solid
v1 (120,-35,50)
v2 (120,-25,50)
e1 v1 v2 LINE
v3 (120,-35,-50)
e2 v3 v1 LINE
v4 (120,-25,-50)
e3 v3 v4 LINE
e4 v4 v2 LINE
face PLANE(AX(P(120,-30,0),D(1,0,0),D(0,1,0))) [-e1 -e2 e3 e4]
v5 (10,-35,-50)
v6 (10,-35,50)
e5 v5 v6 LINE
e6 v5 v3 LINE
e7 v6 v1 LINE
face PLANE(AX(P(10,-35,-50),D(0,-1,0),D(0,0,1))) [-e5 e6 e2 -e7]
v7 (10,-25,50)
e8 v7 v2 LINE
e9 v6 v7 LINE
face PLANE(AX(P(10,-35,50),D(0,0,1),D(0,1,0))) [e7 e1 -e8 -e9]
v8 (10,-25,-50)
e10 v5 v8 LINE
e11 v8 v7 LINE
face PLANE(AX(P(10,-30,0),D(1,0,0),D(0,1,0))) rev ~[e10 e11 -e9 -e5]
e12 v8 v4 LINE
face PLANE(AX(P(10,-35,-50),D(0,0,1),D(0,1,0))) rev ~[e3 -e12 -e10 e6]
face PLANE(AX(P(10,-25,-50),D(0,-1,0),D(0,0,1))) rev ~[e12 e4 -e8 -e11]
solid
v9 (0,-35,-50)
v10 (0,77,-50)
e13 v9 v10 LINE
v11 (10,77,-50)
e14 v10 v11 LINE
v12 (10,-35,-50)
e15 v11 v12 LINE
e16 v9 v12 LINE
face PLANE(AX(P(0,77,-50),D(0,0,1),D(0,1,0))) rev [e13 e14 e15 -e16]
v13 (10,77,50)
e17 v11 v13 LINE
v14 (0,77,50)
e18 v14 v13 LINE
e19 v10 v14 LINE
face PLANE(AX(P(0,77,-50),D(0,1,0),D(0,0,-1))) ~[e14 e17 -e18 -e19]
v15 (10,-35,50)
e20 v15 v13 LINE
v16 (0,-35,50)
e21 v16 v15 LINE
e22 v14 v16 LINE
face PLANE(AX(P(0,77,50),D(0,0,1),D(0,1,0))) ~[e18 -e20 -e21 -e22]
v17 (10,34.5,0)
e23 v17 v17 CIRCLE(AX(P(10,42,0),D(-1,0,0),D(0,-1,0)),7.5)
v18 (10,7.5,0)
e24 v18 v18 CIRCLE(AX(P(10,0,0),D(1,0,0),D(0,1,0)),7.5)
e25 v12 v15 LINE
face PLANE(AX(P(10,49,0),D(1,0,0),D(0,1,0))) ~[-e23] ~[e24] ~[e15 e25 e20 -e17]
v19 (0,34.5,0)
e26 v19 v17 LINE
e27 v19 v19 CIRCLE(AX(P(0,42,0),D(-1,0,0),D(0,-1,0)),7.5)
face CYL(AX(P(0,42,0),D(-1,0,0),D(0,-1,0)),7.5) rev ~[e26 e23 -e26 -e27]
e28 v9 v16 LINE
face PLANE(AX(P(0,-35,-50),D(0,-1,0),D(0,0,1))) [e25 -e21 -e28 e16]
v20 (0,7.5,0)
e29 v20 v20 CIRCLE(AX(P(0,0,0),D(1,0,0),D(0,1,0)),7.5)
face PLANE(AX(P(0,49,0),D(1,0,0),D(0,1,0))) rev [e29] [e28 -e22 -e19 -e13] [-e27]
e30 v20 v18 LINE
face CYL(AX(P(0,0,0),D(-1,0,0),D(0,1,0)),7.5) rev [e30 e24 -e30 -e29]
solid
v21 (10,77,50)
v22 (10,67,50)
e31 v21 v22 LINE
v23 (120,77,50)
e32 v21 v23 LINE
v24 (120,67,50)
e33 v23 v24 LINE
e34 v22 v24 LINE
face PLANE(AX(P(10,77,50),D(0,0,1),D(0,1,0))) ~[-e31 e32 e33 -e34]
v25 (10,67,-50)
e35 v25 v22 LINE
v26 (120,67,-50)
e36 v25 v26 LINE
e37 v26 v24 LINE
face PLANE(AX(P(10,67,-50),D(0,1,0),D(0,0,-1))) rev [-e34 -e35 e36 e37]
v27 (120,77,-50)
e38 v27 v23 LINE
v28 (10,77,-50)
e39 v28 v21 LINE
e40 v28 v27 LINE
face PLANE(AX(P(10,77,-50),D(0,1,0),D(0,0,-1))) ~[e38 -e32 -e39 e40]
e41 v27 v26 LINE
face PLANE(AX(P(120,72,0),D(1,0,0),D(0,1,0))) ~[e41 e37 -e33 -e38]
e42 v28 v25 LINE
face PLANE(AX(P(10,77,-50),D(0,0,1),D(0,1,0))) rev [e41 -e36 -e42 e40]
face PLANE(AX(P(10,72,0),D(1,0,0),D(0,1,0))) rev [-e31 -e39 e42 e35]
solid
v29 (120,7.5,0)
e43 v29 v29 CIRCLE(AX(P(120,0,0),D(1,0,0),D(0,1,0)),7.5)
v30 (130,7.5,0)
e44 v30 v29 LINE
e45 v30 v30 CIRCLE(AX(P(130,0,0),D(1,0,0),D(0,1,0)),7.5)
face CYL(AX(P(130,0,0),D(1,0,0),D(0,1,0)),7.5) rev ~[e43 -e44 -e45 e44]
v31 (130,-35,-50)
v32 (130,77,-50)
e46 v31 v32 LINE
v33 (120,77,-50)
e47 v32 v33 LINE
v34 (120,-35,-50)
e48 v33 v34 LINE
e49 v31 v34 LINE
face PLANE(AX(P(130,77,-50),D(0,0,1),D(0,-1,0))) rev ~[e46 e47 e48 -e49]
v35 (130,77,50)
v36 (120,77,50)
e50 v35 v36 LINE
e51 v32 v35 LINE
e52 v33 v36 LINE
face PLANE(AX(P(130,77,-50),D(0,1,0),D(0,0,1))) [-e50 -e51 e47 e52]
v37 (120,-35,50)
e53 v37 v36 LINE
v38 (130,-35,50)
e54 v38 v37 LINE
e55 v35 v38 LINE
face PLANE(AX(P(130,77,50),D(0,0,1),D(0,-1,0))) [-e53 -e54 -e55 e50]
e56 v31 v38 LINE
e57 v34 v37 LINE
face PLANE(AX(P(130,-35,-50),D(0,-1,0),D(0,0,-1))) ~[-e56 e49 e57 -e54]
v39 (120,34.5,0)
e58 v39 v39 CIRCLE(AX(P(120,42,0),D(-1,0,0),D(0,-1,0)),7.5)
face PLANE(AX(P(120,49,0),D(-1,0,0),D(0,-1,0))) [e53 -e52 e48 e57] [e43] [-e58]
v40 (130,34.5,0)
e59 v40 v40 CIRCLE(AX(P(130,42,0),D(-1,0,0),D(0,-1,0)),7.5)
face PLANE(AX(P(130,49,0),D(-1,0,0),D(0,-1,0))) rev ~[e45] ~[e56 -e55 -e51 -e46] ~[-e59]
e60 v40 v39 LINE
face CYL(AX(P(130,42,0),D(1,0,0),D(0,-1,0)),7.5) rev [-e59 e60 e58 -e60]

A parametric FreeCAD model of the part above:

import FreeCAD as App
import Part
import Sketcher
Q = App.Units.Quantity


def add_polygon(sketch, points):
    """Adds a closed chain of lines whose ends are joined by coincident constraints."""
    first, n = sketch.GeometryCount, len(points)
    for a, b in zip(points, points[1:] + points[:1]):
        sketch.addGeometry(Part.LineSegment(App.Vector(*a, 0), App.Vector(*b, 0)), False)
    for i in range(n):
        sketch.addConstraint(Sketcher.Constraint("Coincident", first + i, 2, first + (i + 1) % n, 1))

doc = App.newDocument("Part")
body = doc.addObject("PartDesign::Body", "Body")

sketch1 = body.newObject("Sketcher::SketchObject", "Sketch")
sketch1.AttachmentSupport = (doc.getObject("YZ_Plane"), [""])
sketch1.MapMode = "FlatFace"
add_polygon(sketch1, [(-35, 50), (-35, -50), (21, -50), (21, 50)])
sketch1.addGeometry(Part.Circle(App.Vector(0, 0, 0), App.Vector(0, 0, 1), 8), False)
sketch1.addConstraint([
    Sketcher.Constraint("Vertical", 0),
    Sketcher.Constraint("Horizontal", 1),
    Sketcher.Constraint("Vertical", 2),
    Sketcher.Constraint("Horizontal", 3),
    Sketcher.Constraint("Coincident", 4, 3, -1, 1),
    Sketcher.Constraint("Diameter", 4, Q("15 mm")),
    Sketcher.Constraint("DistanceX", 1, 1, 1, 2, Q("56 mm")),
    Sketcher.Constraint("DistanceY", 0, 2, 0, 1, Q("100 mm")),
    Sketcher.Constraint("DistanceX", 0, 2, -1, 1, Q("35 mm")),
    Sketcher.Constraint("DistanceY", 0, 2, -1, 1, Q("50 mm")),
])
pad1 = body.newObject("PartDesign::Pad", "Pad")
pad1.Profile = sketch1
pad1.Length = 10
body2 = doc.addObject("PartDesign::Body", "Body001")
doc.recompute()

body2.BaseFeature = body
doc.recompute()

mirroring = doc.addObject("Part::Mirroring", "Mirroring")
mirroring.Source = body
mirroring.Base = App.Vector(5, 21, 0)
mirroring.Normal = App.Vector(0, 1, 0)
body3 = doc.addObject("PartDesign::Body", "Body002")
body3.BaseFeature = mirroring
boolean = body2.newObject("PartDesign::Boolean", "Boolean")
boolean.Type = "Fuse"
boolean.addObjects([body3])
doc.recompute()
body4 = doc.addObject("PartDesign::Body", "Body003")

sketch2 = body4.newObject("Sketcher::SketchObject", "Sketch001")
sketch2.AttachmentSupport = (doc.getObject("YZ_Plane003"), [""])
sketch2.MapMode = "FlatFace"
sketch2.AttachmentOffset = App.Placement(App.Vector(0, 0, 10), App.Rotation())
add_polygon(sketch2, [(-35, 50), (-35, -50), (-25, -50), (-25, 50)])
sketch2.addConstraint([
    Sketcher.Constraint("Vertical", 0),
    Sketcher.Constraint("Horizontal", 1),
    Sketcher.Constraint("Vertical", 2),
    Sketcher.Constraint("Horizontal", 3),
    Sketcher.Constraint("DistanceX", 1, 1, 1, 2, Q("10 mm")),
    Sketcher.Constraint("DistanceY", 0, 2, 0, 1, Q("100 mm")),
    Sketcher.Constraint("DistanceX", 0, 2, -1, 1, Q("35 mm")),
    Sketcher.Constraint("DistanceY", 0, 2, -1, 1, Q("50 mm")),
])
pad2 = body4.newObject("PartDesign::Pad", "Pad001")
pad2.Profile = sketch2
pad2.Length = 110
body5 = doc.addObject("PartDesign::Body", "Body004")
doc.recompute()

mirroring2 = doc.addObject("Part::Mirroring", "Mirroring001")
mirroring2.Source = body4
mirroring2.Base = App.Vector(5, 21, 0)
mirroring2.Normal = App.Vector(0, 1, 0)
body5.BaseFeature = mirroring2
doc.recompute()
body6 = doc.addObject("PartDesign::Body", "Body005")
doc.recompute()

mirroring3 = doc.addObject("Part::Mirroring", "Mirroring002")
mirroring3.Source = body2
mirroring3.Base = App.Vector(65, -4.5, 0)
mirroring3.Normal = App.Vector(1, 0, 0)
body6.BaseFeature = mirroring3
doc.recompute()
mirroring.Visibility = False
mirroring2.Visibility = False
mirroring3.Visibility = False

doc.recompute()
